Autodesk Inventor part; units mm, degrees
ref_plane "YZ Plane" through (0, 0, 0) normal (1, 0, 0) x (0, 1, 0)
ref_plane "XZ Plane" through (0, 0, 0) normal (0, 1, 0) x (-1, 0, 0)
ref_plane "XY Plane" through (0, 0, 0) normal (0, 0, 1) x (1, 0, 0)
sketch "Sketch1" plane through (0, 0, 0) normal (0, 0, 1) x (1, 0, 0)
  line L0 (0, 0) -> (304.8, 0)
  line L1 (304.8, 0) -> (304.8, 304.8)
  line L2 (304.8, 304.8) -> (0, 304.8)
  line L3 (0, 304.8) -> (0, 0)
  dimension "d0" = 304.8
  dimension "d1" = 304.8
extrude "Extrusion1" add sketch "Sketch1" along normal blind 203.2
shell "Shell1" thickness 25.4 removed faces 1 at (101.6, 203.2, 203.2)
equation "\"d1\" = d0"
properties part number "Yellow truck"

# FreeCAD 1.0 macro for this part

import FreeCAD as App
import Part
import Sketcher
Q = App.Units.Quantity


def faces_at(feature, points):
    """Names of the faces that lie closest to the given points."""
    faces = feature.Shape.Faces
    near = lambda p: min(range(len(faces)), key=lambda i: faces[i].distToShape(Part.Vertex(*p))[0])
    return sorted({f"Face{near(p) + 1}" for p in points})

doc = App.newDocument("Part")
body = doc.addObject("PartDesign::Body", "Body")

sketch1 = body.newObject("Sketcher::SketchObject", "Sketch")
sketch1.AttachmentSupport = (doc.getObject("XY_Plane"), [""])
sketch1.MapMode = "FlatFace"
sketch1.addGeometry([
    Part.LineSegment(App.Vector(0, 304.8, 0), App.Vector(0, 0, 0)),
    Part.LineSegment(App.Vector(0, 0, 0), App.Vector(304.8, 0, 0)),
    Part.LineSegment(App.Vector(304.8, 0, 0), App.Vector(304.8, 304.8, 0)),
    Part.LineSegment(App.Vector(304.8, 304.8, 0), App.Vector(0, 304.8, 0)),
], False)
sketch1.addConstraint([
    Sketcher.Constraint("Coincident", 0, 2, 1, 1),
    Sketcher.Constraint("Coincident", 1, 2, 2, 1),
    Sketcher.Constraint("Coincident", 2, 2, 3, 1),
    Sketcher.Constraint("Coincident", 3, 2, 0, 1),
    Sketcher.Constraint("Vertical", 0),
    Sketcher.Constraint("Horizontal", 1),
    Sketcher.Constraint("Vertical", 2),
    Sketcher.Constraint("Horizontal", 3),
    Sketcher.Constraint("Coincident", 0, 2, -1, 1),
    Sketcher.Constraint("Equal", 3, 0),
    Sketcher.Constraint("DistanceX", 1, 1, 1, 2, Q("12 in")),
])
pad1 = body.newObject("PartDesign::Pad", "Pad")
pad1.Profile = sketch1
pad1.Length = Q("8 in")
doc.recompute()

thickness = body.newObject("PartDesign::Thickness", "Thickness")
thickness.Base = (pad1, faces_at(pad1, [(101.6, 203.2, 203.2)]))
thickness.Value = Q("1 in")
thickness.Reversed = True
thickness.Join = "Intersection"

doc.recompute()
